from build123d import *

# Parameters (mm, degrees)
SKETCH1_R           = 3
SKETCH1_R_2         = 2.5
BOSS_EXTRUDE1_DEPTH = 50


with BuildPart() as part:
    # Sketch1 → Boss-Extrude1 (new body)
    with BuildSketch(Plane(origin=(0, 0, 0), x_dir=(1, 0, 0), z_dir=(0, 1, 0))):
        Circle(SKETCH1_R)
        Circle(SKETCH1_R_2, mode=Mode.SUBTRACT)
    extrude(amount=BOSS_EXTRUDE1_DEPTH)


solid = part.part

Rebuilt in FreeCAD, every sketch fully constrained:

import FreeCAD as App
import Part
import Sketcher
from FreeCAD import Vector
Q = App.Units.Quantity

doc = App.newDocument("Part")
body = doc.addObject("PartDesign::Body", "Body")

sketch1 = body.newObject("Sketcher::SketchObject", "Sketch")
sketch1.AttachmentSupport = (doc.getObject("XZ_Plane"), [""])
sketch1.MapMode = "FlatFace"
sketch1.addGeometry(Part.Circle(Vector(0, 0, 0), Vector(0, 0, 1), 3), False)
sketch1.addGeometry(Part.Circle(Vector(0, 0, 0), Vector(0, 0, 1), 2.5), False)
sketch1.addConstraint(Sketcher.Constraint("Coincident", 0, 3, -1, 1))
sketch1.addConstraint(Sketcher.Constraint("Coincident", 1, 3, -1, 1))
sketch1.addConstraint(Sketcher.Constraint("Diameter", 0, Q("6 mm")))
sketch1.addConstraint(Sketcher.Constraint("Diameter", 1, Q("5 mm")))
pad1 = body.newObject("PartDesign::Pad", "Pad")
pad1.Profile = sketch1
pad1.Length = 50
pad1.Reversed = True

doc.recompute()
